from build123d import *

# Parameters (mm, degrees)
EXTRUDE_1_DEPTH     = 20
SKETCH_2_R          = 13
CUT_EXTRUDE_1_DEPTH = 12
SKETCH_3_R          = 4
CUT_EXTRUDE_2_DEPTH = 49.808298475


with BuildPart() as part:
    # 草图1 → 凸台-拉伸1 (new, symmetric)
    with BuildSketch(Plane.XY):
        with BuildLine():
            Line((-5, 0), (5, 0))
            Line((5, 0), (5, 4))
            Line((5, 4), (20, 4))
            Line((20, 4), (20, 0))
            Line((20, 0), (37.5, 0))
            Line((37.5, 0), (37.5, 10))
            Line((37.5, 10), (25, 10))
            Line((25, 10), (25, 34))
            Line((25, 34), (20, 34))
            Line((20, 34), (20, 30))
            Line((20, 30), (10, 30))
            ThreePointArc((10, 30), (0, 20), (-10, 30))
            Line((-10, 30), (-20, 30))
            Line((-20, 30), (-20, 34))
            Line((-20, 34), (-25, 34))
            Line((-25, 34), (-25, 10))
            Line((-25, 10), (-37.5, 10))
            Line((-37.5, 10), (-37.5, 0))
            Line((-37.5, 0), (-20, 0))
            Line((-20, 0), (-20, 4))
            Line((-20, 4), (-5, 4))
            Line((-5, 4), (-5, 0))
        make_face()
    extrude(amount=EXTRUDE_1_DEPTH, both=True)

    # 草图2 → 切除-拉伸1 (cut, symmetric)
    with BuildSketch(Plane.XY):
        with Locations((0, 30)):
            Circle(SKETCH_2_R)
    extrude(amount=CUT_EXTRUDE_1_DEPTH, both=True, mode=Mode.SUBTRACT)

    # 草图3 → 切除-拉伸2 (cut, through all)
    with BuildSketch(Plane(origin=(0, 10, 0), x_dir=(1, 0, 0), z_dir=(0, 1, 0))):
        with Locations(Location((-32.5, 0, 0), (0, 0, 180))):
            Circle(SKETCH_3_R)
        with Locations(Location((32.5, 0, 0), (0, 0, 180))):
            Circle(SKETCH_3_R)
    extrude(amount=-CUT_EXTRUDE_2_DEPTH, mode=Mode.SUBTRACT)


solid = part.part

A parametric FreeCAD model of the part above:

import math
import FreeCAD as App
import Part
import Sketcher

V = App.Vector

doc = App.newDocument("Part")
params = doc.addObject("Spreadsheet::Sheet", "Params")
for row, (alias, value) in enumerate([
    ("sketch1_radius", "10 mm"),
    ("sketch1_width", "10 mm"),
    ("sketch1_width2", "5 mm"),
    ("sketch1_height", "4 mm"),
    ("sketch1_height2", "24 mm"),
    ("pad1_length", "40 mm"),
    ("sketch2_diameter", "26 mm"),
    ("pocket1_length", "24 mm"),
    ("sketch3_diameter", "8 mm"),
], start=1):
    params.set(f"A{row}", alias)
    params.set(f"B{row}", "=" + value)
    params.setAlias(f"B{row}", alias)

body = doc.addObject("PartDesign::Body", "Body")

sketch1 = body.newObject("Sketcher::SketchObject", "Sketch")
sketch1.AttachmentSupport = (doc.getObject("XY_Plane"), [""])
sketch1.MapMode = "FlatFace"
sketch1.addGeometry([
    Part.LineSegment(V(-5, 0, 0), V(5, 0, 0)),
    Part.LineSegment(V(5, 0, 0), V(5, 4, 0)),
    Part.LineSegment(V(5, 4, 0), V(20, 4, 0)),
    Part.LineSegment(V(20, 4, 0), V(20, 0, 0)),
    Part.LineSegment(V(20, 0, 0), V(37.5, 0, 0)),
    Part.LineSegment(V(37.5, 0, 0), V(37.5, 10, 0)),
    Part.LineSegment(V(37.5, 10, 0), V(25, 10, 0)),
    Part.LineSegment(V(25, 10, 0), V(25, 34, 0)),
    Part.LineSegment(V(25, 34, 0), V(20, 34, 0)),
    Part.LineSegment(V(20, 34, 0), V(20, 30, 0)),
    Part.LineSegment(V(20, 30, 0), V(10, 30, 0)),
    Part.ArcOfCircle(Part.Circle(V(0, 30, 0), V(0, 0, 1), 10), math.radians(180), math.radians(360)),
    Part.LineSegment(V(-10, 30, 0), V(-20, 30, 0)),
    Part.LineSegment(V(-20, 30, 0), V(-20, 34, 0)),
    Part.LineSegment(V(-20, 34, 0), V(-25, 34, 0)),
    Part.LineSegment(V(-25, 34, 0), V(-25, 10, 0)),
    Part.LineSegment(V(-25, 10, 0), V(-37.5, 10, 0)),
    Part.LineSegment(V(-37.5, 10, 0), V(-37.5, 0, 0)),
    Part.LineSegment(V(-37.5, 0, 0), V(-20, 0, 0)),
    Part.LineSegment(V(-20, 0, 0), V(-20, 4, 0)),
    Part.LineSegment(V(-20, 4, 0), V(-5, 4, 0)),
    Part.LineSegment(V(-5, 4, 0), V(-5, 0, 0)),
], False)
sketch1.addConstraint([
    Sketcher.Constraint("Coincident", 0, 2, 1, 1),
    Sketcher.Constraint("Coincident", 1, 2, 2, 1),
    Sketcher.Constraint("Coincident", 2, 2, 3, 1),
    Sketcher.Constraint("Coincident", 3, 2, 4, 1),
    Sketcher.Constraint("Coincident", 4, 2, 5, 1),
    Sketcher.Constraint("Coincident", 5, 2, 6, 1),
    Sketcher.Constraint("Coincident", 6, 2, 7, 1),
    Sketcher.Constraint("Coincident", 7, 2, 8, 1),
    Sketcher.Constraint("Coincident", 8, 2, 9, 1),
    Sketcher.Constraint("Coincident", 9, 2, 10, 1),
    Sketcher.Constraint("Coincident", 10, 2, 11, 2),
    Sketcher.Constraint("Coincident", 11, 1, 12, 1),
    Sketcher.Constraint("Coincident", 12, 2, 13, 1),
    Sketcher.Constraint("Coincident", 13, 2, 14, 1),
    Sketcher.Constraint("Coincident", 14, 2, 15, 1),
    Sketcher.Constraint("Coincident", 15, 2, 16, 1),
    Sketcher.Constraint("Coincident", 16, 2, 17, 1),
    Sketcher.Constraint("Coincident", 17, 2, 18, 1),
    Sketcher.Constraint("Coincident", 18, 2, 19, 1),
    Sketcher.Constraint("Coincident", 19, 2, 20, 1),
    Sketcher.Constraint("Coincident", 20, 2, 21, 1),
    Sketcher.Constraint("Coincident", 21, 2, 0, 1),
    Sketcher.Constraint("Horizontal", 0),
    Sketcher.Constraint("Vertical", 1),
    Sketcher.Constraint("Horizontal", 2),
    Sketcher.Constraint("Vertical", 3),
    Sketcher.Constraint("Horizontal", 4),
    Sketcher.Constraint("Vertical", 5),
    Sketcher.Constraint("Horizontal", 6),
    Sketcher.Constraint("Vertical", 7),
    Sketcher.Constraint("Horizontal", 8),
    Sketcher.Constraint("Vertical", 9),
    Sketcher.Constraint("Horizontal", 10),
    Sketcher.Constraint("Horizontal", 12),
    Sketcher.Constraint("Vertical", 13),
    Sketcher.Constraint("Horizontal", 14),
    Sketcher.Constraint("Vertical", 15),
    Sketcher.Constraint("Horizontal", 16),
    Sketcher.Constraint("Vertical", 17),
    Sketcher.Constraint("Horizontal", 18),
    Sketcher.Constraint("Vertical", 19),
    Sketcher.Constraint("Horizontal", 20),
    Sketcher.Constraint("Vertical", 21),
    Sketcher.Constraint("Symmetric", 4, 2, 17, 2, -1, 1),
    Sketcher.Constraint("Symmetric", 0, 2, 21, 2, -1, 1),
    Sketcher.Constraint("Symmetric", 10, 2, 11, 1, -2),
    Sketcher.Constraint("Symmetric", 8, 2, 13, 2, -2),
    Sketcher.Constraint("Symmetric", 6, 2, 15, 2, -2),
    Sketcher.Constraint("Symmetric", 3, 2, 18, 2, -2),
    Sketcher.Constraint("Horizontal", 11, 3, 9, 2),
    Sketcher.Constraint("Horizontal", 2, 2, 19, 2),
    Sketcher.Constraint("Vertical", 3, 2, 8, 2),
    Sketcher.Constraint("Equal", 0, 10),
    Sketcher.Constraint("Equal", 12, 5),
    Sketcher.Constraint("Equal", 3, 9),
    Sketcher.Constraint("Radius", 11, 10.0),
    Sketcher.Constraint("DistanceX", 0, 1, 0, 2, 10.0),
    Sketcher.Constraint("DistanceX", 8, 2, 8, 1, 5.0),
    Sketcher.Constraint("DistanceY", 1, 1, 1, 2, 4.0),
    Sketcher.Constraint("DistanceY", 7, 1, 7, 2, 24.0),
    Sketcher.Constraint("DistanceX", 4, 1, 4, 2, 17.5),
])
sketch1.setExpression("Constraints[55]", "Params.sketch1_radius")
sketch1.setExpression("Constraints[56]", "Params.sketch1_width")
sketch1.setExpression("Constraints[57]", "Params.sketch1_width2")
sketch1.setExpression("Constraints[58]", "Params.sketch1_height")
sketch1.setExpression("Constraints[59]", "Params.sketch1_height2")
pad1 = body.newObject("PartDesign::Pad", "Pad")
pad1.Profile = sketch1
pad1.setExpression("Length", "Params.pad1_length")
pad1.Midplane = True

sketch2 = body.newObject("Sketcher::SketchObject", "Sketch001")
sketch2.AttachmentSupport = (doc.getObject("XY_Plane"), [""])
sketch2.MapMode = "FlatFace"
sketch2.addGeometry(Part.Circle(V(0, 30, 0), V(0, 0, 1), 13), False)
sketch2.addConstraint([
    Sketcher.Constraint("PointOnObject", 0, 3, -2),
    Sketcher.Constraint("Diameter", 0, 26.0),
    Sketcher.Constraint("DistanceY", -1, 1, 0, 3, 30.0),
])
sketch2.setExpression("Constraints[1]", "Params.sketch2_diameter")
pocket1 = body.newObject("PartDesign::Pocket", "Pocket")
pocket1.Profile = sketch2
pocket1.setExpression("Length", "Params.pocket1_length")
pocket1.Midplane = True

sketch3 = body.newObject("Sketcher::SketchObject", "Sketch002")
sketch3.AttachmentSupport = (doc.getObject("XZ_Plane"), [""])
sketch3.MapMode = "FlatFace"
sketch3.AttachmentOffset = App.Placement(V(0, 0, -10), App.Rotation())
sketch3.addGeometry([
    Part.Circle(V(-32.5, 0, 0), V(0, 0, 1), 4),
    Part.Circle(V(32.5, 0, 0), V(0, 0, 1), 4),
], False)
sketch3.addConstraint([
    Sketcher.Constraint("Equal", 0, 1),
    Sketcher.Constraint("Symmetric", 0, 3, 1, 3, -1, 1),
    Sketcher.Constraint("PointOnObject", 0, 3, -1),
    Sketcher.Constraint("Diameter", 0, 8.0),
    Sketcher.Constraint("DistanceX", 0, 3, 1, 3, 65.0),
])
sketch3.setExpression("Constraints[3]", "Params.sketch3_diameter")
pocket2 = body.newObject("PartDesign::Pocket", "Pocket001")
pocket2.Profile = sketch3
pocket2.Type = "ThroughAll"
pocket2.Reversed = True

doc.recompute()
